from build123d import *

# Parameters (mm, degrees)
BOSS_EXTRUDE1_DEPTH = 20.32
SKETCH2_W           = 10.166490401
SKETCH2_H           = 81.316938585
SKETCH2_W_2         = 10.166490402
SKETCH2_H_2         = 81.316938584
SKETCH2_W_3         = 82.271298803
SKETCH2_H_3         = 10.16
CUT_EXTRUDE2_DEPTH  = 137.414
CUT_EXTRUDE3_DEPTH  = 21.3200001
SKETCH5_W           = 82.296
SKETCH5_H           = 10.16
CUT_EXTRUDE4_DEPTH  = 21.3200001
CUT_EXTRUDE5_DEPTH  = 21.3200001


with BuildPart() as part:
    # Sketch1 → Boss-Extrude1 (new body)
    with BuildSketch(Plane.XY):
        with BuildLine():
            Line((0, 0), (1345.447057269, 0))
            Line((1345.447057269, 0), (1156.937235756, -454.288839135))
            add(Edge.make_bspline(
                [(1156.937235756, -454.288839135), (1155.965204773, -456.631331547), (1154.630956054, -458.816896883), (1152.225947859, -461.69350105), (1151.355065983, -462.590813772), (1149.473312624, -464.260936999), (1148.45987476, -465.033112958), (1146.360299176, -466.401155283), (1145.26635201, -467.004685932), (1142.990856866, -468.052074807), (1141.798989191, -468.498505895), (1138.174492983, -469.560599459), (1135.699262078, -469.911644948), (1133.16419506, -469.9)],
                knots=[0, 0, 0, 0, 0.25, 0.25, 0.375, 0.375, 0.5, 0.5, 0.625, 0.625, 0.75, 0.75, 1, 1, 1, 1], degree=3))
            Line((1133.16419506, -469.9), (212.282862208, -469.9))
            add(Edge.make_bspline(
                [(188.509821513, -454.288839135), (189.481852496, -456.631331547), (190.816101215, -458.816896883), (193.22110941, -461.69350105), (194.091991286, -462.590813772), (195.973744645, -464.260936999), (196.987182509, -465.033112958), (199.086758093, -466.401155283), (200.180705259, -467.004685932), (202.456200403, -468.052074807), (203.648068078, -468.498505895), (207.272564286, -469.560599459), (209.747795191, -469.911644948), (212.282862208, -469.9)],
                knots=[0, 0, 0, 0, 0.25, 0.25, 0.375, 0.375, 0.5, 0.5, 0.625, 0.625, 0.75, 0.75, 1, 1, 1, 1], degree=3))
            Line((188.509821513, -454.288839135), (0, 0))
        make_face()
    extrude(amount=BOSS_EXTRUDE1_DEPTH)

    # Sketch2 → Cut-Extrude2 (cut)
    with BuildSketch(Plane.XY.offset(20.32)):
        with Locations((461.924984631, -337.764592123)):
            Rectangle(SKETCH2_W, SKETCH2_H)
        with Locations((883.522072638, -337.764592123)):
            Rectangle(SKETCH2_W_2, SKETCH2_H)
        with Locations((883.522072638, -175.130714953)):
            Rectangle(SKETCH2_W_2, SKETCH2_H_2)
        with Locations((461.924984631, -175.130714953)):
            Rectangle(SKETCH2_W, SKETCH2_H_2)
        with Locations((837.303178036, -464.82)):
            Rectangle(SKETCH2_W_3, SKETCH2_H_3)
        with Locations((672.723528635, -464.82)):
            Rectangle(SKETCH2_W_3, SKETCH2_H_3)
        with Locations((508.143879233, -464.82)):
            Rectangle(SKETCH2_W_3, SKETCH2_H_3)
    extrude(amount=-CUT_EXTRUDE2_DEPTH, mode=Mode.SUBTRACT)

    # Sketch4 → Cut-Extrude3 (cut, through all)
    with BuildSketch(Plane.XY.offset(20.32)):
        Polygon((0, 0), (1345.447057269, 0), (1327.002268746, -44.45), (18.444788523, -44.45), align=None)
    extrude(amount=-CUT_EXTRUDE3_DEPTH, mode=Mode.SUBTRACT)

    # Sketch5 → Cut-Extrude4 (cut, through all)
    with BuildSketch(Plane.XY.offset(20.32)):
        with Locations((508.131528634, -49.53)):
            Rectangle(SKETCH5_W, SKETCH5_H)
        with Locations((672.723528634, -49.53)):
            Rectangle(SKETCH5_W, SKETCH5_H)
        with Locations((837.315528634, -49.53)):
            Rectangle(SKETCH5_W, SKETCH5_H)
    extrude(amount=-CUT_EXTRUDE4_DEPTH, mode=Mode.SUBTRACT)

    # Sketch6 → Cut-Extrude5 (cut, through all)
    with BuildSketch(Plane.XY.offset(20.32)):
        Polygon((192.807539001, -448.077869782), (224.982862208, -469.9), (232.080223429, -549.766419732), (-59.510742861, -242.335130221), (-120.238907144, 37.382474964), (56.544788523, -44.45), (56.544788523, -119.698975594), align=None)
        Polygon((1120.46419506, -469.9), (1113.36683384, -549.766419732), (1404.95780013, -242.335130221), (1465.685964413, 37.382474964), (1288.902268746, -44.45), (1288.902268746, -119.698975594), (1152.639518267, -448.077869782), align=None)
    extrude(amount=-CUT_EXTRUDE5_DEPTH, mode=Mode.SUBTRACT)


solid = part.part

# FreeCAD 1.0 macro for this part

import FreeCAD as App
import Part
import Sketcher

V = App.Vector
Q = App.Units.Quantity


def add_polygon(sketch, points):
    """Adds a closed chain of lines whose ends are joined by coincident constraints."""
    first, n = sketch.GeometryCount, len(points)
    for a, b in zip(points, points[1:] + points[:1]):
        sketch.addGeometry(Part.LineSegment(App.Vector(*a, 0), App.Vector(*b, 0)), False)
    for i in range(n):
        sketch.addConstraint(Sketcher.Constraint("Coincident", first + i, 2, first + (i + 1) % n, 1))

doc = App.newDocument("Part")
body = doc.addObject("PartDesign::Body", "Body")

# Sketch on XY plane
sketch1 = body.newObject("Sketcher::SketchObject", "Sketch")
sketch1.AttachmentSupport = (doc.getObject("XY_Plane"), [""])
sketch1.MapMode = "FlatFace"
sketch1.addGeometry([
    Part.LineSegment(V(1345.447057, 0, 0), V(0, 0, 0)),  # 0
    Part.LineSegment(V(0, 0, 0), V(188.509822, -454.288839, 0)),  # 1
    Part.BSplineCurve([V(188.509822, -454.288839, 0), V(189.481852, -456.631332, 0), V(190.816101, -458.816897, 0), V(193.221109, -461.693501, 0), V(194.091991, -462.590814, 0), V(195.973745, -464.260937, 0), V(196.987183, -465.033113, 0), V(199.086758, -466.401155, 0), V(200.180705, -467.004686, 0), V(202.4562, -468.052075, 0), V(203.648068, -468.498506, 0), V(207.272564, -469.560599, 0), V(209.747795, -469.911645, 0), V(212.282862, -469.9, 0)], [4, 2, 2, 2, 2, 2, 4], [0, 0.25, 0.375, 0.5, 0.625, 0.75, 1], False, 3, [1, 1, 1, 1, 1, 1, 1, 1, 1, 1, 1, 1, 1, 1], False),  # 2
    Part.LineSegment(V(212.282862, -469.9, 0), V(1133.164195, -469.9, 0)),  # 3
    Part.BSplineCurve([V(1156.937236, -454.288839, 0), V(1155.965205, -456.631332, 0), V(1154.630956, -458.816897, 0), V(1152.225948, -461.693501, 0), V(1151.355066, -462.590814, 0), V(1149.473313, -464.260937, 0), V(1148.459875, -465.033113, 0), V(1146.360299, -466.401155, 0), V(1145.266352, -467.004686, 0), V(1142.990857, -468.052075, 0), V(1141.798989, -468.498506, 0), V(1138.174493, -469.560599, 0), V(1135.699262, -469.911645, 0), V(1133.164195, -469.9, 0)], [4, 2, 2, 2, 2, 2, 4], [0, 0.25, 0.375, 0.5, 0.625, 0.75, 1], False, 3, [1, 1, 1, 1, 1, 1, 1, 1, 1, 1, 1, 1, 1, 1], False),  # 4
    Part.LineSegment(V(1156.937236, -454.288839, 0), V(1345.447057, 0, 0)),  # 5
], False)
sketch1.addConstraint([
    Sketcher.Constraint("Block", 2),
    Sketcher.Constraint("Block", 4),
    Sketcher.Constraint("Coincident", 0, 2, 1, 1),
    Sketcher.Constraint("Coincident", 1, 2, 2, 1),
    Sketcher.Constraint("Coincident", 2, 2, 3, 1),
    Sketcher.Constraint("Coincident", 3, 2, 4, 2),
    Sketcher.Constraint("Coincident", 4, 1, 5, 1),
    Sketcher.Constraint("Coincident", 5, 2, 0, 1),
    Sketcher.Constraint("Horizontal", 0),
    Sketcher.Constraint("Coincident", 0, 2, -1, 1),
    Sketcher.Constraint("Equal", 1, 5),
])
pad1 = body.newObject("PartDesign::Pad", "Pad")
pad1.Profile = sketch1
pad1.Length = Q("0.8 in")

# Sketch on XY plane
sketch2 = body.newObject("Sketcher::SketchObject", "Sketch001")
sketch2.AttachmentSupport = (doc.getObject("XY_Plane"), [""])
sketch2.MapMode = "FlatFace"
sketch2.AttachmentOffset = App.Placement(V(0, 0, 0.8 * 25.4), App.Rotation())
add_polygon(sketch2, [(457, -297), (457, -378), (467, -378), (467, -297)])  # lines 0-3
add_polygon(sketch2, [(878, -297), (878, -378), (889, -378), (889, -297)])  # lines 4-7
add_polygon(sketch2, [(878, -134), (878, -216), (889, -216), (889, -134)])  # lines 8-11
add_polygon(sketch2, [(457, -134), (457, -216), (467, -216), (467, -134)])  # lines 12-15
add_polygon(sketch2, [(796, -460), (796, -470), (878, -470), (878, -460)])  # lines 16-19
add_polygon(sketch2, [(632, -460), (632, -470), (714, -470), (714, -460)])  # lines 20-23
add_polygon(sketch2, [(467, -460), (467, -470), (549, -470), (549, -460)])  # lines 24-27
sketch2.addConstraint([
    Sketcher.Constraint("Vertical", 0),
    Sketcher.Constraint("Horizontal", 1),
    Sketcher.Constraint("Vertical", 2),
    Sketcher.Constraint("Horizontal", 3),
    Sketcher.Constraint("Vertical", 4),
    Sketcher.Constraint("Horizontal", 5),
    Sketcher.Constraint("Vertical", 6),
    Sketcher.Constraint("Horizontal", 7),
    Sketcher.Constraint("Vertical", 8),
    Sketcher.Constraint("Horizontal", 9),
    Sketcher.Constraint("Vertical", 10),
    Sketcher.Constraint("Horizontal", 11),
    Sketcher.Constraint("Vertical", 12),
    Sketcher.Constraint("Horizontal", 13),
    Sketcher.Constraint("Vertical", 14),
    Sketcher.Constraint("Horizontal", 15),
    Sketcher.Constraint("Vertical", 16),
    Sketcher.Constraint("Horizontal", 17),
    Sketcher.Constraint("Vertical", 18),
    Sketcher.Constraint("Horizontal", 19),
    Sketcher.Constraint("Vertical", 20),
    Sketcher.Constraint("Horizontal", 21),
    Sketcher.Constraint("Vertical", 22),
    Sketcher.Constraint("Horizontal", 23),
    Sketcher.Constraint("Vertical", 24),
    Sketcher.Constraint("Horizontal", 25),
    Sketcher.Constraint("Vertical", 26),
    Sketcher.Constraint("Horizontal", 27),
    Sketcher.Constraint("Horizontal", 1, 2, 4, 2),
    Sketcher.Constraint("Horizontal", 3, 2, 6, 2),
    Sketcher.Constraint("Horizontal", 9, 2, 12, 2),
    Sketcher.Constraint("Horizontal", 11, 2, 14, 2),
    Sketcher.Constraint("Horizontal", 17, 2, 20, 2),
    Sketcher.Constraint("Horizontal", 19, 2, 22, 2),
    Sketcher.Constraint("Horizontal", 21, 2, 24, 2),
    Sketcher.Constraint("Horizontal", 23, 2, 26, 2),
    Sketcher.Constraint("Vertical", 7, 2, 8, 2),
    Sketcher.Constraint("Vertical", 6, 2, 9, 2),
    Sketcher.Constraint("Vertical", 3, 2, 12, 2),
    Sketcher.Constraint("Vertical", 2, 2, 13, 2),
    Sketcher.Constraint("Vertical", 11, 2, 17, 2),
    Sketcher.Constraint("Vertical", 14, 2, 24, 2),
    Sketcher.Constraint("Equal", 3, 5),
    Sketcher.Constraint("Equal", 19, 21),
    Sketcher.Constraint("Equal", 23, 25),
    Sketcher.Constraint("Equal", 6, 8),
    Sketcher.Constraint("DistanceY", 16, 2, 16, 1, Q("0.4 in")),
    Sketcher.Constraint("DistanceY", 16, 2, -1, 1, Q("18.5 in")),
    Sketcher.Constraint("DistanceX", 17, 1, 17, 2, Q("82.271299 mm")),
    Sketcher.Constraint("DistanceX", 1, 1, 1, 2, Q("10.16649 mm")),
    Sketcher.Constraint("DistanceY", 0, 2, 0, 1, Q("81.316939 mm")),
    Sketcher.Constraint("DistanceX", -1, 1, 0, 2, Q("456.841739 mm")),
    Sketcher.Constraint("DistanceY", 0, 2, -1, 1, Q("378.423061 mm")),
    Sketcher.Constraint("DistanceX", -1, 1, 16, 2, Q("796.167529 mm")),
    Sketcher.Constraint("DistanceX", -1, 1, 20, 2, Q("631.587879 mm")),
    Sketcher.Constraint("DistanceY", 7, 2, 8, 2, Q("81.316939 mm")),
])
pocket1 = body.newObject("PartDesign::Pocket", "Pocket")
pocket1.Profile = sketch2
pocket1.Length = Q("5.41 in")

# Sketch on XY plane
sketch3 = body.newObject("Sketcher::SketchObject", "Sketch002")
sketch3.AttachmentSupport = (doc.getObject("XY_Plane"), [""])
sketch3.MapMode = "FlatFace"
sketch3.AttachmentOffset = App.Placement(V(0, 0, 0.8 * 25.4), App.Rotation())
add_polygon(sketch3, [(1345, 0), (0, 0), (18, -44), (1327, -44)])  # lines 0-3
sketch3.addConstraint([
    Sketcher.Constraint("Horizontal", 0),
    Sketcher.Constraint("Horizontal", 2),
    Sketcher.Constraint("Coincident", 0, 2, -1, 1),
    Sketcher.Constraint("Equal", 1, 3),
    Sketcher.Constraint("DistanceY", 1, 2, -1, 1, Q("1.75 in")),
    Sketcher.Constraint("DistanceX", 2, 1, 2, 2, Q("1308.55748 mm")),
    Sketcher.Constraint("Distance", 1, Q("48.12497 mm")),
])
pocket2 = body.newObject("PartDesign::Pocket", "Pocket001")
pocket2.Profile = sketch3
pocket2.Type = "ThroughAll"

# Sketch on XY plane
sketch4 = body.newObject("Sketcher::SketchObject", "Sketch003")
sketch4.AttachmentSupport = (doc.getObject("XY_Plane"), [""])
sketch4.MapMode = "FlatFace"
sketch4.AttachmentOffset = App.Placement(V(0, 0, 0.8 * 25.4), App.Rotation())
add_polygon(sketch4, [(467, -44), (467, -55), (549, -55), (549, -44)])  # lines 0-3
add_polygon(sketch4, [(632, -44), (632, -55), (714, -55), (714, -44)])  # lines 4-7
add_polygon(sketch4, [(796, -44), (796, -55), (878, -55), (878, -44)])  # lines 8-11
sketch4.addConstraint([
    Sketcher.Constraint("Vertical", 0),
    Sketcher.Constraint("Horizontal", 1),
    Sketcher.Constraint("Vertical", 2),
    Sketcher.Constraint("Horizontal", 3),
    Sketcher.Constraint("Vertical", 4),
    Sketcher.Constraint("Horizontal", 5),
    Sketcher.Constraint("Vertical", 6),
    Sketcher.Constraint("Horizontal", 7),
    Sketcher.Constraint("Vertical", 8),
    Sketcher.Constraint("Horizontal", 9),
    Sketcher.Constraint("Vertical", 10),
    Sketcher.Constraint("Horizontal", 11),
    Sketcher.Constraint("Horizontal", 1, 2, 4, 2),
    Sketcher.Constraint("Horizontal", 3, 2, 6, 2),
    Sketcher.Constraint("Horizontal", 5, 2, 8, 2),
    Sketcher.Constraint("Horizontal", 7, 2, 10, 2),
    Sketcher.Constraint("Equal", 3, 5),
    Sketcher.Constraint("Equal", 7, 9),
    Sketcher.Constraint("DistanceY", 0, 2, 0, 1, Q("0.4 in")),
    Sketcher.Constraint("DistanceX", 1, 1, 1, 2, Q("3.24 in")),
    Sketcher.Constraint("DistanceY", 0, 2, -1, 1, Q("2.15 in")),
    Sketcher.Constraint("DistanceX", 1, 2, 4, 2, Q("3.24 in")),
    Sketcher.Constraint("DistanceX", 5, 2, 8, 2, Q("3.24 in")),
    Sketcher.Constraint("DistanceX", -1, 1, 0, 2, Q("466.983529 mm")),
])
pocket3 = body.newObject("PartDesign::Pocket", "Pocket002")
pocket3.Profile = sketch4
pocket3.Type = "ThroughAll"

# Sketch on XY plane
sketch5 = body.newObject("Sketcher::SketchObject", "Sketch004")
sketch5.AttachmentSupport = (doc.getObject("XY_Plane"), [""])
sketch5.MapMode = "FlatFace"
sketch5.AttachmentOffset = App.Placement(V(0, 0, 0.8 * 25.4), App.Rotation())
add_polygon(sketch5, [(225, -470), (193, -448), (57, -120), (57, -44), (-120, 37), (-60, -242), (232, -550)])  # lines 0-6
add_polygon(sketch5, [(1120, -470), (1113, -550), (1405, -242), (1466, 37), (1289, -44), (1289, -120), (1153, -448)])  # lines 7-13
sketch5.addConstraint([
    Sketcher.Constraint("Vertical", 2),
    Sketcher.Constraint("Vertical", 11),
    Sketcher.Constraint("Horizontal", 5, 2, 7, 2),
    Sketcher.Constraint("Horizontal", 4, 2, 8, 2),
    Sketcher.Constraint("Horizontal", 3, 2, 9, 2),
    Sketcher.Constraint("Horizontal", 2, 2, 10, 2),
    Sketcher.Constraint("Horizontal", 1, 2, 11, 2),
    Sketcher.Constraint("Horizontal", 0, 2, 12, 2),
    Sketcher.Constraint("Horizontal", 6, 2, 13, 2),
    Sketcher.Constraint("Equal", 6, 7),
    Sketcher.Constraint("Equal", 5, 8),
    Sketcher.Constraint("Equal", 4, 9),
    Sketcher.Constraint("Equal", 3, 10),
    Sketcher.Constraint("Equal", 1, 12),
    Sketcher.Constraint("DistanceY", 6, 2, -1, 1, Q("18.5 in")),
    Sketcher.Constraint("DistanceY", 2, 2, -1, 1, Q("1.75 in")),
    Sketcher.Constraint("DistanceX", -1, 1, 8, 2, Q("1404.9578 mm")),
    Sketcher.Constraint("Distance", 0, Q("38.877459 mm")),
    Sketcher.Constraint("Distance", 5, Q("423.720768 mm")),
    Sketcher.Constraint("DistanceY", 2, 1, 2, 2, Q("75.248976 mm")),
    Sketcher.Constraint("DistanceX", -1, 1, 0, 2, Q("192.807539 mm")),
    Sketcher.Constraint("DistanceY", 0, 2, -1, 1, Q("448.07787 mm")),
    Sketcher.Constraint("DistanceX", -1, 1, 1, 2, Q("56.544789 mm")),
    Sketcher.Constraint("DistanceY", 4, 2, -1, 1, Q("242.33513 mm")),
    Sketcher.Constraint("DistanceY", 5, 2, -1, 1, Q("549.76642 mm")),
    Sketcher.Constraint("DistanceX", -1, 1, 10, 2, Q("1288.902269 mm")),
    Sketcher.Constraint("DistanceY", 1, 2, 3, 2, Q("157.081451 mm")),
    Sketcher.Constraint("DistanceX", 3, 2, 5, 2, Q("352.319131 mm")),
])
pocket4 = body.newObject("PartDesign::Pocket", "Pocket003")
pocket4.Profile = sketch5
pocket4.Type = "ThroughAll"

doc.recompute()
